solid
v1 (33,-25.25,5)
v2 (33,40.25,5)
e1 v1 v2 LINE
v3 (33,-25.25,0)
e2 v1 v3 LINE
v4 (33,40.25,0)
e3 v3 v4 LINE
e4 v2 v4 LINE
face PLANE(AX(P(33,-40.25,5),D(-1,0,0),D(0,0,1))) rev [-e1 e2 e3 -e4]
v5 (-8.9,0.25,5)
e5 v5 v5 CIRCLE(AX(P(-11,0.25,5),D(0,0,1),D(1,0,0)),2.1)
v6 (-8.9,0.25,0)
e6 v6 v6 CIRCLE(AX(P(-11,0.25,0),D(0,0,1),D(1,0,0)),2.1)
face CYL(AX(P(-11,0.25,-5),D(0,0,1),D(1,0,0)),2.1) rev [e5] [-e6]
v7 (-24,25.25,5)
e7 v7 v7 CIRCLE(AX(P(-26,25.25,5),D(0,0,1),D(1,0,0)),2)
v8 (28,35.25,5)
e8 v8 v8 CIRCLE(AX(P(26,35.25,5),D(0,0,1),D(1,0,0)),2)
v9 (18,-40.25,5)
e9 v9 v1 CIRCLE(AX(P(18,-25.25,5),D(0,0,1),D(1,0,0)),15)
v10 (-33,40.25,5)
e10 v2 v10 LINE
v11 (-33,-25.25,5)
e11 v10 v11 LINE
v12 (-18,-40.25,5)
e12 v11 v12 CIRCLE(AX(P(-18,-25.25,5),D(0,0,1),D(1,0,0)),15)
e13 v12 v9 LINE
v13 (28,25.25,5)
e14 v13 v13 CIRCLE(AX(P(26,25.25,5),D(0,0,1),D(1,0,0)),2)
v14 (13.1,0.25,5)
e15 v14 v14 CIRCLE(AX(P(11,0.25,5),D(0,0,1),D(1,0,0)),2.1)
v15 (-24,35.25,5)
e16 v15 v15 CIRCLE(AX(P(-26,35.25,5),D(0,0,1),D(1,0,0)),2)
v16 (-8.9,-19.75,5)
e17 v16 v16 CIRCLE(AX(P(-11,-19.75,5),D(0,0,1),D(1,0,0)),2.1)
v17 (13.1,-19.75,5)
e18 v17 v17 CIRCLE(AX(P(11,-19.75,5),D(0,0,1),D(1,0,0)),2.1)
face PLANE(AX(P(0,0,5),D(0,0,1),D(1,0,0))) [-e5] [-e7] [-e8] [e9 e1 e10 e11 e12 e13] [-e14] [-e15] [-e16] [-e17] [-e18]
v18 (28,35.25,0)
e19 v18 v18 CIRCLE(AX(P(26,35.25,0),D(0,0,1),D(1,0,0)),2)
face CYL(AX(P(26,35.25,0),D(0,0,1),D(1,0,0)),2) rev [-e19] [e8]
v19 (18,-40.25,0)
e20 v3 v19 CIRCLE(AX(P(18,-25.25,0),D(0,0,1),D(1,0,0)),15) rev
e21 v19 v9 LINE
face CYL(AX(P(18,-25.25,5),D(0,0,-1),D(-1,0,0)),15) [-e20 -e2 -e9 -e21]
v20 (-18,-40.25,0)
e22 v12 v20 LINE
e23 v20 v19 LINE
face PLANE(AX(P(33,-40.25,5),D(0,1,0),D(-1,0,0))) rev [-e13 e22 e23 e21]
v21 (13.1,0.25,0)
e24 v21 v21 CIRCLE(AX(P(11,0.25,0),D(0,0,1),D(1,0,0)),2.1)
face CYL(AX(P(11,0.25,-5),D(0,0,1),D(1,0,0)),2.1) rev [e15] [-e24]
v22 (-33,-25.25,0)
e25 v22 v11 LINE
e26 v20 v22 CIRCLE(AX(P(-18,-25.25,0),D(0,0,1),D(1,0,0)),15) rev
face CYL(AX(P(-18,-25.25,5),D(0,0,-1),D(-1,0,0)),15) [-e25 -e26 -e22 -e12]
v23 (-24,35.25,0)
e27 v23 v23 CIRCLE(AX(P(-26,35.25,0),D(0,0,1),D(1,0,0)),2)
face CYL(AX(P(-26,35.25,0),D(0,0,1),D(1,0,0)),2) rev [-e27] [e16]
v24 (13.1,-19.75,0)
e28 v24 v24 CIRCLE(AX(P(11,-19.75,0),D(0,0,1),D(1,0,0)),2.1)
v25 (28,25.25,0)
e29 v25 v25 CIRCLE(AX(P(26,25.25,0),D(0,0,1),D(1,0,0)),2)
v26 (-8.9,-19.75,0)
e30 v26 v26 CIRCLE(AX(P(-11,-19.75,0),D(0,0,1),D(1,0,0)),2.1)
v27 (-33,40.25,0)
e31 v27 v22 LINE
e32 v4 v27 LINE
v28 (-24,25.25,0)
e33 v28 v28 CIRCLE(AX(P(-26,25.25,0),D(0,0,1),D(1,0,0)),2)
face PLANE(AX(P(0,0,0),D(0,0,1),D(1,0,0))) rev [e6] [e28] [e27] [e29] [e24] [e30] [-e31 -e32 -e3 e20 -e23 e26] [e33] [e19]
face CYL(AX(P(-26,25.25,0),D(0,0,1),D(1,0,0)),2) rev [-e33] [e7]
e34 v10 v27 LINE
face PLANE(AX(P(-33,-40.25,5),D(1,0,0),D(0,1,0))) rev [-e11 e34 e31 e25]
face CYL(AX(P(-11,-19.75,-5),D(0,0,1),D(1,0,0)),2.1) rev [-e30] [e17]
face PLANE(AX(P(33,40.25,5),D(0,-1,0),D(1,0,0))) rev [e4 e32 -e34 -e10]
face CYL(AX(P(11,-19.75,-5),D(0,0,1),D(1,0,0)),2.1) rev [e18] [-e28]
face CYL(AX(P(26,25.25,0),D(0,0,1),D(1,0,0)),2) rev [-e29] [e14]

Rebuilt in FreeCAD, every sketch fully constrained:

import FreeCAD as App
import Part
import Sketcher


def edges_at(feature, points):
    """Names of the edges that pass closest to the given points."""
    edges = feature.Shape.Edges
    near = lambda p: min(range(len(edges)), key=lambda i: edges[i].distToShape(Part.Vertex(*p))[0])
    return sorted({f"Edge{near(p) + 1}" for p in points})


def add_polygon(sketch, points):
    """Adds a closed chain of lines whose ends are joined by coincident constraints."""
    first, n = sketch.GeometryCount, len(points)
    for a, b in zip(points, points[1:] + points[:1]):
        sketch.addGeometry(Part.LineSegment(App.Vector(*a, 0), App.Vector(*b, 0)), False)
    for i in range(n):
        sketch.addConstraint(Sketcher.Constraint("Coincident", first + i, 2, first + (i + 1) % n, 1))

doc = App.newDocument("Part")
body = doc.addObject("PartDesign::Body", "Body")

# Sketch on XY plane
sketch1 = body.newObject("Sketcher::SketchObject", "Sketch")
sketch1.AttachmentSupport = (doc.getObject("XY_Plane"), [""])
sketch1.MapMode = "FlatFace"
add_polygon(sketch1, [(-33, 40.25), (-33, -40.25), (33, -40.25), (33, 40.25)])  # lines 0-3
sketch1.addConstraint(Sketcher.Constraint("Vertical", 0))
sketch1.addConstraint(Sketcher.Constraint("Horizontal", 1))
sketch1.addConstraint(Sketcher.Constraint("Vertical", 2))
sketch1.addConstraint(Sketcher.Constraint("Horizontal", 3))
sketch1.addConstraint(Sketcher.Constraint("Symmetric", 0, 2, 2, 2, -1, 1))
sketch1.addConstraint(Sketcher.Constraint("DistanceX", 1, 1, 1, 2, 66.0))
sketch1.addConstraint(Sketcher.Constraint("DistanceY", 0, 2, 0, 1, 80.5))
pad1 = body.newObject("PartDesign::Pad", "Pad")
pad1.Profile = sketch1
pad1.Length = 5

# Sketch on XY plane
sketch2 = body.newObject("Sketcher::SketchObject", "Sketch001")
sketch2.AttachmentSupport = (doc.getObject("XY_Plane"), [""])
sketch2.MapMode = "FlatFace"
sketch2.AttachmentOffset = App.Placement(App.Vector(0, 0, 5), App.Rotation())
sketch2.addGeometry(Part.Circle(App.Vector(-26, 35.25, 0), App.Vector(0, 0, 1), 2), False)
sketch2.addGeometry(Part.Circle(App.Vector(26, 35.25, 0), App.Vector(0, 0, 1), 2), False)
sketch2.addGeometry(Part.Circle(App.Vector(26, 25.25, 0), App.Vector(0, 0, 1), 2), False)
sketch2.addGeometry(Part.Circle(App.Vector(-26, 25.25, 0), App.Vector(0, 0, 1), 2), False)
sketch2.addConstraint(Sketcher.Constraint("Equal", 0, 1))
sketch2.addConstraint(Sketcher.Constraint("Equal", 1, 2))
sketch2.addConstraint(Sketcher.Constraint("Equal", 2, 3))
sketch2.addConstraint(Sketcher.Constraint("Symmetric", 0, 3, 1, 3, -2))
sketch2.addConstraint(Sketcher.Constraint("Symmetric", 2, 3, 3, 3, -2))
sketch2.addConstraint(Sketcher.Constraint("Vertical", 1, 3, 2, 3))
sketch2.addConstraint(Sketcher.Constraint("Diameter", 0, 4.0))
sketch2.addConstraint(Sketcher.Constraint("DistanceX", 0, 3, -1, 1, 26.0))
sketch2.addConstraint(Sketcher.Constraint("DistanceY", 2, 3, 1, 3, 10.0))
sketch2.addConstraint(Sketcher.Constraint("DistanceY", -1, 1, 0, 3, 35.25))
pocket1 = body.newObject("PartDesign::Pocket", "Pocket")
pocket1.Profile = sketch2
pocket1.Type = "ThroughAll"

# Sketch on XY plane
sketch3 = body.newObject("Sketcher::SketchObject", "Sketch002")
sketch3.AttachmentSupport = (doc.getObject("XY_Plane"), [""])
sketch3.MapMode = "FlatFace"
sketch3.AttachmentOffset = App.Placement(App.Vector(0, 0, 5), App.Rotation())
sketch3.addGeometry(Part.Circle(App.Vector(-11, 0.25, 0), App.Vector(0, 0, 1), 2.1), False)
sketch3.addGeometry(Part.Circle(App.Vector(11, 0.25, 0), App.Vector(0, 0, 1), 2.1), False)
sketch3.addGeometry(Part.Circle(App.Vector(11, -19.75, 0), App.Vector(0, 0, 1), 2.1), False)
sketch3.addGeometry(Part.Circle(App.Vector(-11, -19.75, 0), App.Vector(0, 0, 1), 2.1), False)
sketch3.addConstraint(Sketcher.Constraint("Equal", 0, 1))
sketch3.addConstraint(Sketcher.Constraint("Equal", 1, 2))
sketch3.addConstraint(Sketcher.Constraint("Equal", 2, 3))
sketch3.addConstraint(Sketcher.Constraint("Symmetric", 0, 3, 1, 3, -2))
sketch3.addConstraint(Sketcher.Constraint("Symmetric", 2, 3, 3, 3, -2))
sketch3.addConstraint(Sketcher.Constraint("Vertical", 1, 3, 2, 3))
sketch3.addConstraint(Sketcher.Constraint("Diameter", 0, 4.2))
sketch3.addConstraint(Sketcher.Constraint("DistanceX", 0, 3, -1, 1, 11.0))
sketch3.addConstraint(Sketcher.Constraint("DistanceY", 2, 3, 1, 3, 20.0))
sketch3.addConstraint(Sketcher.Constraint("DistanceY", -1, 1, 0, 3, 0.25))
pocket2 = body.newObject("PartDesign::Pocket", "Pocket001")
pocket2.Profile = sketch3
pocket2.Length = 10
doc.recompute()

fillet = body.newObject("PartDesign::Fillet", "Fillet")
fillet.Base = (pocket2, edges_at(pocket2, [(33, -40.25, 2.5), (-33, -40.25, 2.5)]))
fillet.Radius = 15

doc.recompute()
